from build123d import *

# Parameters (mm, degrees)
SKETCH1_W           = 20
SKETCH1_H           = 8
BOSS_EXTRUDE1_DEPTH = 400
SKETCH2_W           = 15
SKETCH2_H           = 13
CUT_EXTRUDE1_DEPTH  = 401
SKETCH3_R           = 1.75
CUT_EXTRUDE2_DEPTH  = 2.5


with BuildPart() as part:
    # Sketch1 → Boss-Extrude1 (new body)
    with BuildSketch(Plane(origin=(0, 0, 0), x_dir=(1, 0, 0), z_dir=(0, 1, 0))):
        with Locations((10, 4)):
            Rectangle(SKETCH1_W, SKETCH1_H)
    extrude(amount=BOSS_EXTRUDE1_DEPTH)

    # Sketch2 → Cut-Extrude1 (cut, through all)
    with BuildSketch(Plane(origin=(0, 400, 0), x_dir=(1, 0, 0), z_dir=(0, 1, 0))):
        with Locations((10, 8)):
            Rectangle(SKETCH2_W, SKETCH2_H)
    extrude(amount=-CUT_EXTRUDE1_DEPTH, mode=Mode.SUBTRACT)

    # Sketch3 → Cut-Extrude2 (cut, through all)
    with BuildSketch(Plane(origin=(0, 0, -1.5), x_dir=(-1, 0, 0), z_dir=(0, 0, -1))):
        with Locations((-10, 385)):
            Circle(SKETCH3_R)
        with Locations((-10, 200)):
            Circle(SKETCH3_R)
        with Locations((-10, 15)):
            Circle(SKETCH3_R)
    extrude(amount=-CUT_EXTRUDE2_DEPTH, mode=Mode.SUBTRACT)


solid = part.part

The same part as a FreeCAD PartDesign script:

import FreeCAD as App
import Part
import Sketcher
from FreeCAD import Vector
Q = App.Units.Quantity

doc = App.newDocument("Part")
body = doc.addObject("PartDesign::Body", "Body")

# Sketch on XZ plane
sketch1 = body.newObject("Sketcher::SketchObject", "Sketch")
sketch1.AttachmentSupport = (doc.getObject("XZ_Plane"), [""])
sketch1.MapMode = "FlatFace"
sketch1.addGeometry(Part.LineSegment(Vector(0, -8, 0), Vector(0, 0, 0)), False)
sketch1.addGeometry(Part.LineSegment(Vector(0, 0, 0), Vector(20, 0, 0)), False)
sketch1.addGeometry(Part.LineSegment(Vector(20, 0, 0), Vector(20, -8, 0)), False)
sketch1.addGeometry(Part.LineSegment(Vector(20, -8, 0), Vector(0, -8, 0)), False)
sketch1.addConstraint(Sketcher.Constraint("Coincident", 0, 2, 1, 1))
sketch1.addConstraint(Sketcher.Constraint("Coincident", 1, 2, 2, 1))
sketch1.addConstraint(Sketcher.Constraint("Coincident", 2, 2, 3, 1))
sketch1.addConstraint(Sketcher.Constraint("Coincident", 3, 2, 0, 1))
sketch1.addConstraint(Sketcher.Constraint("Vertical", 0))
sketch1.addConstraint(Sketcher.Constraint("Horizontal", 1))
sketch1.addConstraint(Sketcher.Constraint("Vertical", 2))
sketch1.addConstraint(Sketcher.Constraint("Horizontal", 3))
sketch1.addConstraint(Sketcher.Constraint("Coincident", 0, 2, -1, 1))
sketch1.addConstraint(Sketcher.Constraint("DistanceX", 1, 1, 1, 2, Q("20 mm")))
sketch1.addConstraint(Sketcher.Constraint("DistanceY", 0, 1, 0, 2, Q("8 mm")))
pad1 = body.newObject("PartDesign::Pad", "Pad")
pad1.Profile = sketch1
pad1.Length = 400
pad1.Reversed = True

# Sketch on XZ plane
sketch2 = body.newObject("Sketcher::SketchObject", "Sketch001")
sketch2.AttachmentSupport = (doc.getObject("XZ_Plane"), [""])
sketch2.MapMode = "FlatFace"
sketch2.AttachmentOffset = App.Placement(Vector(0, 0, -400), App.Rotation())
sketch2.addGeometry(Part.LineSegment(Vector(2, -14, 0), Vector(2, -2, 0)), False)
sketch2.addGeometry(Part.LineSegment(Vector(2, -2, 0), Vector(18, -2, 0)), False)
sketch2.addGeometry(Part.LineSegment(Vector(18, -2, 0), Vector(18, -14, 0)), False)
sketch2.addGeometry(Part.LineSegment(Vector(18, -14, 0), Vector(2, -14, 0)), False)
sketch2.addConstraint(Sketcher.Constraint("Coincident", 0, 2, 1, 1))
sketch2.addConstraint(Sketcher.Constraint("Coincident", 1, 2, 2, 1))
sketch2.addConstraint(Sketcher.Constraint("Coincident", 2, 2, 3, 1))
sketch2.addConstraint(Sketcher.Constraint("Coincident", 3, 2, 0, 1))
sketch2.addConstraint(Sketcher.Constraint("Vertical", 0))
sketch2.addConstraint(Sketcher.Constraint("Horizontal", 1))
sketch2.addConstraint(Sketcher.Constraint("Vertical", 2))
sketch2.addConstraint(Sketcher.Constraint("Horizontal", 3))
sketch2.addConstraint(Sketcher.Constraint("DistanceX", 1, 1, 1, 2, Q("15 mm")))
sketch2.addConstraint(Sketcher.Constraint("DistanceY", 0, 1, 0, 2, Q("13 mm")))
sketch2.addConstraint(Sketcher.Constraint("DistanceX", -1, 1, 0, 2, Q("2.5 mm")))
sketch2.addConstraint(Sketcher.Constraint("DistanceY", 0, 2, -1, 1, Q("1.5 mm")))
pocket1 = body.newObject("PartDesign::Pocket", "Pocket")
pocket1.Profile = sketch2
pocket1.Type = "ThroughAll"
pocket1.Reversed = True

# Sketch on XY plane
sketch3 = body.newObject("Sketcher::SketchObject", "Sketch002")
sketch3.AttachmentSupport = (doc.getObject("XY_Plane"), [""])
sketch3.MapMode = "FlatFace"
sketch3.AttachmentOffset = App.Placement(Vector(0, 0, -1.5), App.Rotation())
sketch3.addGeometry(Part.Circle(Vector(10, 385, 0), Vector(0, 0, 1), 1.8), False)
sketch3.addGeometry(Part.Circle(Vector(10, 200, 0), Vector(0, 0, 1), 1.8), False)
sketch3.addGeometry(Part.Circle(Vector(10, 15, 0), Vector(0, 0, 1), 1.8), False)
sketch3.addConstraint(Sketcher.Constraint("Equal", 0, 1))
sketch3.addConstraint(Sketcher.Constraint("Equal", 1, 2))
sketch3.addConstraint(Sketcher.Constraint("Vertical", 0, 3, 1, 3))
sketch3.addConstraint(Sketcher.Constraint("Vertical", 1, 3, 2, 3))
sketch3.addConstraint(Sketcher.Constraint("Diameter", 0, Q("3.5 mm")))
sketch3.addConstraint(Sketcher.Constraint("DistanceX", -1, 1, 0, 3, Q("10 mm")))
sketch3.addConstraint(Sketcher.Constraint("DistanceY", -1, 1, 0, 3, Q("385 mm")))
sketch3.addConstraint(Sketcher.Constraint("DistanceY", -1, 1, 1, 3, Q("200 mm")))
sketch3.addConstraint(Sketcher.Constraint("DistanceY", -1, 1, 2, 3, Q("15 mm")))
pocket2 = body.newObject("PartDesign::Pocket", "Pocket001")
pocket2.Profile = sketch3
pocket2.Type = "ThroughAll"
pocket2.Reversed = True

doc.recompute()
